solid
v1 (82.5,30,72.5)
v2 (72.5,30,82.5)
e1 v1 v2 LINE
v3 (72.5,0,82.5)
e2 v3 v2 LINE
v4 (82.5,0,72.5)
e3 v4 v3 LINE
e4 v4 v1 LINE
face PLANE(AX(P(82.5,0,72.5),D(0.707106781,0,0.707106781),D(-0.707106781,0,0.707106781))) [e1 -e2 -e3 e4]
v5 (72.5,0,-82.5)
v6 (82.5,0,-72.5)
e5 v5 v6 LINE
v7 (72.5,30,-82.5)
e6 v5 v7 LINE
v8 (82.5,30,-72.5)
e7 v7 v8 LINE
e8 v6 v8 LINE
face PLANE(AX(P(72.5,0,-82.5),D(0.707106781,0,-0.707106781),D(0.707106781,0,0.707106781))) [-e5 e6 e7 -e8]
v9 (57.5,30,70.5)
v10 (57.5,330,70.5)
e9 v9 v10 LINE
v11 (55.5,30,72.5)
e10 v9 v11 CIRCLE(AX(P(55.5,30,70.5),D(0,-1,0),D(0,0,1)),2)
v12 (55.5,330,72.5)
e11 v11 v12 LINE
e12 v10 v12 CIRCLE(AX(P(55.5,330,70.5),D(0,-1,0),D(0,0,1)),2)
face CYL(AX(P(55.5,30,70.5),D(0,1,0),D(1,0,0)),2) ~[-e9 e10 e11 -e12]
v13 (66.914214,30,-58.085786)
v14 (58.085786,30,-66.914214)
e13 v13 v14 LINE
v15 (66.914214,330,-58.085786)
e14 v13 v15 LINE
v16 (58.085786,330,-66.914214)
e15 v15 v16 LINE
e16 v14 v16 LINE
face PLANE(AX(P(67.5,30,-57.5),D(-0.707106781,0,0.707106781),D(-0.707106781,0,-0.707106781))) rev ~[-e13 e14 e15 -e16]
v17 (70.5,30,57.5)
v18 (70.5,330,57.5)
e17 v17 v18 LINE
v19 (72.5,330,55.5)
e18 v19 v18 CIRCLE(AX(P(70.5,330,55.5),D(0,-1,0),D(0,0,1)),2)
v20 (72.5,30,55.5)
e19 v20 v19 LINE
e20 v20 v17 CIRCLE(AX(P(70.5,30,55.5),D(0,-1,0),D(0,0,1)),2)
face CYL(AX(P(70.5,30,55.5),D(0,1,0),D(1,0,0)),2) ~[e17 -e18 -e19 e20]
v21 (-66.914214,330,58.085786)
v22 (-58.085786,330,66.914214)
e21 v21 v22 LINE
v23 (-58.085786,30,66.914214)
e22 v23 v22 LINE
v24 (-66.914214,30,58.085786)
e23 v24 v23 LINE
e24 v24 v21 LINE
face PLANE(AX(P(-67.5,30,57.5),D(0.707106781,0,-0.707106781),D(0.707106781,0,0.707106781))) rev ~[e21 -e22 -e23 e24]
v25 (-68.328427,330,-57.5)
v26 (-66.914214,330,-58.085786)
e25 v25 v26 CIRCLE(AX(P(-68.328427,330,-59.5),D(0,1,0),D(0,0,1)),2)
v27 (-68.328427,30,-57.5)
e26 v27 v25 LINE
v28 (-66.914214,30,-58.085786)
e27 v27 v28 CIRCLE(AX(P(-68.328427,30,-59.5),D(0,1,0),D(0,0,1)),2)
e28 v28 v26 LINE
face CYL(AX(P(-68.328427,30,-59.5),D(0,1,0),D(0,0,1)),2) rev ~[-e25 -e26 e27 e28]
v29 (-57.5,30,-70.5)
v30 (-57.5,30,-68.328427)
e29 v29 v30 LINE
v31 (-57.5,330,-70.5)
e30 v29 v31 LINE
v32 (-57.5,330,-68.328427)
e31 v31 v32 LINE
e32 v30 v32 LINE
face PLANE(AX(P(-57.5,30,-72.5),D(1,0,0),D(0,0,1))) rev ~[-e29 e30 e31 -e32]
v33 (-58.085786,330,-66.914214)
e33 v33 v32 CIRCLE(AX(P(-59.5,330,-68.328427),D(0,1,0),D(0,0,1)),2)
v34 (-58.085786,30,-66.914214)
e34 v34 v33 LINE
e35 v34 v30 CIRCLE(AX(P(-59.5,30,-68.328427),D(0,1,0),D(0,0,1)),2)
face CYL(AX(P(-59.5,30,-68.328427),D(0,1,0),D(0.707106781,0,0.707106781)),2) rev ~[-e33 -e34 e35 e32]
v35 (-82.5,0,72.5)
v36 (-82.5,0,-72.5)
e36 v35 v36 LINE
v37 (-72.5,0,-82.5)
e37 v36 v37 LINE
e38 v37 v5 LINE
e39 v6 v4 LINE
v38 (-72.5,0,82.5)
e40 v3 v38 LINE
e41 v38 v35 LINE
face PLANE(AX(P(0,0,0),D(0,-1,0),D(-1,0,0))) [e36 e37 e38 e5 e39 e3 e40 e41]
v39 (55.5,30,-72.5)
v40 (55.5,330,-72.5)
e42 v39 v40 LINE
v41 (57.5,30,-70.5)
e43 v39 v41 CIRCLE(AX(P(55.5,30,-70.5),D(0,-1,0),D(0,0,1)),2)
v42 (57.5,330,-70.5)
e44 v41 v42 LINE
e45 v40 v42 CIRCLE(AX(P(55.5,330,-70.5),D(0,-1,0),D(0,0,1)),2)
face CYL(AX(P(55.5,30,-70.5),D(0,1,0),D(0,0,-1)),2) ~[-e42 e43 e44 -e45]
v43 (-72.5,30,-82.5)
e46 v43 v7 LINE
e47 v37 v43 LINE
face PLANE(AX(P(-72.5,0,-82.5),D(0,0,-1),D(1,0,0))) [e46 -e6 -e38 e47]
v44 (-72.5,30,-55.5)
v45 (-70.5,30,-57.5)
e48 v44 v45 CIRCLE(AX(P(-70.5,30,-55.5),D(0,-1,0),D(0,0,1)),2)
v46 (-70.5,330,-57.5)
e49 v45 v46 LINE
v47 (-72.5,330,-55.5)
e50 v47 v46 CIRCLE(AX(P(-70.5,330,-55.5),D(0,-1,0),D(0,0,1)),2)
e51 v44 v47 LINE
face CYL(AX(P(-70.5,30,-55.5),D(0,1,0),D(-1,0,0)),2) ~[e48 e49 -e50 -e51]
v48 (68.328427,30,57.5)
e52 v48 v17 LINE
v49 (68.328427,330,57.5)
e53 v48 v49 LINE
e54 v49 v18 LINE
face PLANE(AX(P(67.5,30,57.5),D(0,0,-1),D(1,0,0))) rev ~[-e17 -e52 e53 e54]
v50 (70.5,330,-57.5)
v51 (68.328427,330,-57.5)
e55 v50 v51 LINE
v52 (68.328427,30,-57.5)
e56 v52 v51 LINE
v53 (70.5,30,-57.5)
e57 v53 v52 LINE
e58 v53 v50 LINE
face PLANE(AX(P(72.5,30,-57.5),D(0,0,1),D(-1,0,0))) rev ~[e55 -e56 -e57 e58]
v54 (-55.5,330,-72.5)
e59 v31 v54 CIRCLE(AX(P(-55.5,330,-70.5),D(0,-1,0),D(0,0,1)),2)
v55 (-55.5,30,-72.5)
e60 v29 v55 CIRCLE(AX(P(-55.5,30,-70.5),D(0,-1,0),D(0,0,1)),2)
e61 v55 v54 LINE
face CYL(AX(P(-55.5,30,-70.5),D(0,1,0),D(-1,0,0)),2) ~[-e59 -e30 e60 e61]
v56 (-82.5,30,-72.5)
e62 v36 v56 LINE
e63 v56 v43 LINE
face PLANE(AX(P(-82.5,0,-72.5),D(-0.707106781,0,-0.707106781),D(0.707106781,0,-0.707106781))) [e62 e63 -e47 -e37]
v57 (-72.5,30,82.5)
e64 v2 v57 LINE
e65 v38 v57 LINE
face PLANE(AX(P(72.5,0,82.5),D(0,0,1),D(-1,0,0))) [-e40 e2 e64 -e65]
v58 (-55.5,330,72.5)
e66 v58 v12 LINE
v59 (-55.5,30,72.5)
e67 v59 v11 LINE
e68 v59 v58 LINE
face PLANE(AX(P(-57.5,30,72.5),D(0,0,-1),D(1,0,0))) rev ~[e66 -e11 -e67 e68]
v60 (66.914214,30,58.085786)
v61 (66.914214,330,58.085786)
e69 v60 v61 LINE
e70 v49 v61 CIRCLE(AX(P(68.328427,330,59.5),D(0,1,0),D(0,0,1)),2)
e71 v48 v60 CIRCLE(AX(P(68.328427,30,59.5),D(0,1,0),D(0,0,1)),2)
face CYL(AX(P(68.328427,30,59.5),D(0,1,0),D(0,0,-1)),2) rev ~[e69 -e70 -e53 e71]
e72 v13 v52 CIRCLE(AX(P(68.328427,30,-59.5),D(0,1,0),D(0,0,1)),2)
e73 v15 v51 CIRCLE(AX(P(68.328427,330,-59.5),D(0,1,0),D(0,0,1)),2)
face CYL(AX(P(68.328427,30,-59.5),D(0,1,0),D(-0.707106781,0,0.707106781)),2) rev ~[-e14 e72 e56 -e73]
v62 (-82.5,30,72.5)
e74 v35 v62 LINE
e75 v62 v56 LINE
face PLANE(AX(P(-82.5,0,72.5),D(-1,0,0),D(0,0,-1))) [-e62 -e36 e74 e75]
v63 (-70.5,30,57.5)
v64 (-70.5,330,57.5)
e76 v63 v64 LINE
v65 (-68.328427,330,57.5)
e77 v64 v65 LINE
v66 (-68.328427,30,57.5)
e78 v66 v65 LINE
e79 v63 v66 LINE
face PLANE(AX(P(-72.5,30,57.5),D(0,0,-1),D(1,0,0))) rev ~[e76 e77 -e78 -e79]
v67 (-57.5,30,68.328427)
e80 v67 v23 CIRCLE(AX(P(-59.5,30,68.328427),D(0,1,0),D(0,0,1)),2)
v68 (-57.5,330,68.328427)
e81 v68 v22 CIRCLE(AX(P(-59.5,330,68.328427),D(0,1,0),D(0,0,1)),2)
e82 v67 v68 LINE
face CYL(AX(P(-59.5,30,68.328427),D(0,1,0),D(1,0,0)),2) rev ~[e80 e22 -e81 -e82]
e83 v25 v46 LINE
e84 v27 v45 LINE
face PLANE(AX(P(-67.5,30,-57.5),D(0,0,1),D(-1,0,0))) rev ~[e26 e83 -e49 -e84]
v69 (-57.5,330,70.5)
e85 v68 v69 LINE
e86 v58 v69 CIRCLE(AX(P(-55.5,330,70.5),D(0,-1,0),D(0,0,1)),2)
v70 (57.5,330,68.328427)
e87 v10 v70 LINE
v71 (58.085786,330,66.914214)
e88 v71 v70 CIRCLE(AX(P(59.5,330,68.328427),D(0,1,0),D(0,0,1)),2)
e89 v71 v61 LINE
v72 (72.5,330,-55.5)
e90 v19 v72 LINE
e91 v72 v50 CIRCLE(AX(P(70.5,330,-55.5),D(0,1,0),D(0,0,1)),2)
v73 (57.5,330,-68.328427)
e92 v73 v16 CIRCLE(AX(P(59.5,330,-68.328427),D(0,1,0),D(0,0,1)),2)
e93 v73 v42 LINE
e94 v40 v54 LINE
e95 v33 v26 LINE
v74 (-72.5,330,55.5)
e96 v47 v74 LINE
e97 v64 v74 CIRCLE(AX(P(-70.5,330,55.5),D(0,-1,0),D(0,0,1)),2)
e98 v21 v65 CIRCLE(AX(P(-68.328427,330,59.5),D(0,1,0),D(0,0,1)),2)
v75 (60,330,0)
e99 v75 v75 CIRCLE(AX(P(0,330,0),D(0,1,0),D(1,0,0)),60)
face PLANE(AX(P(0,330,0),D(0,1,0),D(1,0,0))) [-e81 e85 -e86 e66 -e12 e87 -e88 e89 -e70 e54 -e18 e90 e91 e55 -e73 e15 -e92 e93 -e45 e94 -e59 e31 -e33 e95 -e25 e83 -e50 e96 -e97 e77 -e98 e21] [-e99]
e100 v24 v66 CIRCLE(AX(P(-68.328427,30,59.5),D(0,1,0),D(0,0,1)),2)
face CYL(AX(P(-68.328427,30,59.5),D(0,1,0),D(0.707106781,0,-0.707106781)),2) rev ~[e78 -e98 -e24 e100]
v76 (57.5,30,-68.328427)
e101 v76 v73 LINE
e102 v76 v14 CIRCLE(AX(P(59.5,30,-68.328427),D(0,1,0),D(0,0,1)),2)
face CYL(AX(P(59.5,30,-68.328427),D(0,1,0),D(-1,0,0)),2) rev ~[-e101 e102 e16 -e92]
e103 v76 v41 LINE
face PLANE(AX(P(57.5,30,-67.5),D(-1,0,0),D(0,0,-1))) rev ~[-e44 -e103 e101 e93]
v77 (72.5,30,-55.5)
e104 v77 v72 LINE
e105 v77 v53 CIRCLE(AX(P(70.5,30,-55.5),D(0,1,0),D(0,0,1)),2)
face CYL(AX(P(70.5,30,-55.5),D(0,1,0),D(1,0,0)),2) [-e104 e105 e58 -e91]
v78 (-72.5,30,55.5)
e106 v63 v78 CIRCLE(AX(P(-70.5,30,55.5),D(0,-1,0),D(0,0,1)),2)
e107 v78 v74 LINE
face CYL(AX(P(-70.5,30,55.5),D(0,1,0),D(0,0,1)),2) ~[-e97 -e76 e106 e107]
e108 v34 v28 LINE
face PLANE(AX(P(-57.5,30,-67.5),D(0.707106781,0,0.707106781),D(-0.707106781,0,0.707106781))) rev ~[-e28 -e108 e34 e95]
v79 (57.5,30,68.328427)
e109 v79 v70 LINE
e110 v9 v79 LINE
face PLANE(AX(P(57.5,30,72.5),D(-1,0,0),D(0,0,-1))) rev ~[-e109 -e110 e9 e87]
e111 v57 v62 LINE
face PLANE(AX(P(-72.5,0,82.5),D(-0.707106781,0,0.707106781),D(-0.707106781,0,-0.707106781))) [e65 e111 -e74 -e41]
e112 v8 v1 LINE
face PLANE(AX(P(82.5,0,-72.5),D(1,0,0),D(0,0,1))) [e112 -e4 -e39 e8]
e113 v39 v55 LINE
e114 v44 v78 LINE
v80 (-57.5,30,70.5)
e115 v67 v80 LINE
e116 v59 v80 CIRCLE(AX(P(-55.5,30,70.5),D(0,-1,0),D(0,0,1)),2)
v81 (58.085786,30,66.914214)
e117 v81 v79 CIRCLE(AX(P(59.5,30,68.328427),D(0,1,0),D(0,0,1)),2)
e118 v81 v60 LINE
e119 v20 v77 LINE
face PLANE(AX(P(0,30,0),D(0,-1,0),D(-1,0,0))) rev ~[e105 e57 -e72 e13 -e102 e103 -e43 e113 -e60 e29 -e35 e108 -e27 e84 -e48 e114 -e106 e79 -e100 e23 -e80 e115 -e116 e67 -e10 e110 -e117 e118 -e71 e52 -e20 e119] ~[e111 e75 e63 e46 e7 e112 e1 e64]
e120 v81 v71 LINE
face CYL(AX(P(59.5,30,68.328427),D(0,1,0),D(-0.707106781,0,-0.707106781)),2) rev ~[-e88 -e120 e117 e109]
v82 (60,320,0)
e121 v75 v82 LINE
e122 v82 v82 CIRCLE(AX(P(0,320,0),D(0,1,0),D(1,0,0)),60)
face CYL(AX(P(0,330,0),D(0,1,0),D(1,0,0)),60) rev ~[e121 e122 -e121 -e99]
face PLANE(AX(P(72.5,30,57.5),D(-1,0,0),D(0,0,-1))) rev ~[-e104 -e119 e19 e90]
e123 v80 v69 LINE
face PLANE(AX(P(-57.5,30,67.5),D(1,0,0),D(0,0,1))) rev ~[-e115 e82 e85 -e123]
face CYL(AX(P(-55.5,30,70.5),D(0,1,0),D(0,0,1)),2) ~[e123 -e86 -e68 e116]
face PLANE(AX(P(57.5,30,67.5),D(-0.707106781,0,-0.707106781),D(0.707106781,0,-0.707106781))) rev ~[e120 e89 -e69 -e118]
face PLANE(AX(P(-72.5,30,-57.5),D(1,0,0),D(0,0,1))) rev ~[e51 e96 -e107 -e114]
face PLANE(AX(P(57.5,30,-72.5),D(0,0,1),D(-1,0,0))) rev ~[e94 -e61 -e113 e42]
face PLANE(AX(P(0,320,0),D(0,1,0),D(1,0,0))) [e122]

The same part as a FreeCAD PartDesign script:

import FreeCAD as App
import Part
import Sketcher

V = App.Vector


def edges_at(feature, points):
    """Names of the edges that pass closest to the given points."""
    edges = feature.Shape.Edges
    near = lambda p: min(range(len(edges)), key=lambda i: edges[i].distToShape(Part.Vertex(*p))[0])
    return sorted({f"Edge{near(p) + 1}" for p in points})


def add_polygon(sketch, points):
    """Adds a closed chain of lines whose ends are joined by coincident constraints."""
    first, n = sketch.GeometryCount, len(points)
    for a, b in zip(points, points[1:] + points[:1]):
        sketch.addGeometry(Part.LineSegment(App.Vector(*a, 0), App.Vector(*b, 0)), False)
    for i in range(n):
        sketch.addConstraint(Sketcher.Constraint("Coincident", first + i, 2, first + (i + 1) % n, 1))

doc = App.newDocument("Part")
body = doc.addObject("PartDesign::Body", "Body")

# Sketch on XZ plane
sketch1 = doc.addObject("Sketcher::SketchObject", "Sketch")
body.addObject(sketch1)
sketch1.AttachmentSupport = (doc.XZ_Plane, [""])
sketch1.MapMode = "FlatFace"
add_polygon(sketch1, [(-72, -82), (-82, -72), (-82, 72), (-72, 82), (72, 82), (82, 72), (82, -72), (72, -82)])  # lines 0-7
sketch1.addConstraint([
    Sketcher.Constraint("Vertical", 1),
    Sketcher.Constraint("Horizontal", 3),
    Sketcher.Constraint("Vertical", 5),
    Sketcher.Constraint("Horizontal", 7),
    Sketcher.Constraint("Symmetric", 0, 2, 4, 2, -1, 1),
    Sketcher.Constraint("Symmetric", 2, 2, 6, 2, -1, 1),
    Sketcher.Constraint("Perpendicular", 0, 2),
    Sketcher.Constraint("Perpendicular", 2, 4),
    Sketcher.Constraint("Perpendicular", 4, 6),
    Sketcher.Constraint("Horizontal", 1, 2, 4, 2),
    Sketcher.Constraint("Vertical", 3, 2, 6, 2),
    Sketcher.Constraint("Equal", 7, 1),
    Sketcher.Constraint("DistanceX", 3, 1, 3, 2, 145.0),
    Sketcher.Constraint("DistanceX", 1, 2, 2, 2, 10.0),
])
pad1 = doc.addObject("PartDesign::Pad", "Pad")
body.addObject(pad1)
pad1.Profile = sketch1
pad1.Length = 30
pad1.Reversed = True

# Sketch on XZ plane
sketch2 = doc.addObject("Sketcher::SketchObject", "Sketch001")
body.addObject(sketch2)
sketch2.AttachmentSupport = (doc.XZ_Plane, [""])
sketch2.MapMode = "FlatFace"
sketch2.AttachmentOffset = App.Placement(V(0, 0, -30), App.Rotation())
add_polygon(sketch2, [(72, -58), (68, -58), (58, -68), (58, -72), (-58, -72), (-58, -68), (-68, -58), (-72, -58), (-72, 58), (-68, 58), (-58, 68), (-58, 72), (58, 72), (58, 68), (68, 58), (72, 58)])  # lines 0-15
sketch2.addConstraint([
    Sketcher.Constraint("Horizontal", 0),
    Sketcher.Constraint("Vertical", 2),
    Sketcher.Constraint("Horizontal", 3),
    Sketcher.Constraint("Vertical", 4),
    Sketcher.Constraint("Horizontal", 6),
    Sketcher.Constraint("Vertical", 7),
    Sketcher.Constraint("Horizontal", 8),
    Sketcher.Constraint("Vertical", 10),
    Sketcher.Constraint("Horizontal", 11),
    Sketcher.Constraint("Vertical", 12),
    Sketcher.Constraint("Horizontal", 14),
    Sketcher.Constraint("Vertical", 15),
    Sketcher.Constraint("Symmetric", 0, 2, 8, 2, -1, 1),
    Sketcher.Constraint("Symmetric", 1, 2, 9, 2, -1, 1),
    Sketcher.Constraint("Symmetric", 3, 2, 11, 2, -1, 1),
    Sketcher.Constraint("Symmetric", 5, 2, 13, 2, -1, 1),
    Sketcher.Constraint("Symmetric", 1, 2, 4, 2, -2),
    Sketcher.Constraint("Symmetric", 0, 2, 5, 2, -2),
    Sketcher.Constraint("Perpendicular", 1, 5),
    Sketcher.Constraint("Perpendicular", 9, 13),
    Sketcher.Constraint("Equal", 0, 6),
    Sketcher.Constraint("Equal", 14, 2),
    Sketcher.Constraint("Equal", 11, 7),
    Sketcher.Constraint("DistanceX", 0, 2, 0, 1, 5.0),
    Sketcher.Constraint("DistanceX", 3, 2, 3, 1, 115.0),
    Sketcher.Constraint("DistanceX", 1, 2, 0, 2, 10.0),
])
pad2 = doc.addObject("PartDesign::Pad", "Pad001")
body.addObject(pad2)
pad2.Profile = sketch2
pad2.Length = 300
pad2.Reversed = True

# Sketch on XZ plane
sketch3 = doc.addObject("Sketcher::SketchObject", "Sketch002")
body.addObject(sketch3)
sketch3.AttachmentSupport = (doc.XZ_Plane, [""])
sketch3.MapMode = "FlatFace"
sketch3.AttachmentOffset = App.Placement(V(0, 0, -330), App.Rotation())
sketch3.addGeometry(Part.Circle(V(0, 0, 0), V(0, 0, 1), 60), False)
sketch3.addConstraint([
    Sketcher.Constraint("Coincident", 0, 3, -1, 1),
    Sketcher.Constraint("Diameter", 0, 120.0),
])
pocket1 = doc.addObject("PartDesign::Pocket", "Pocket")
body.addObject(pocket1)
pocket1.Profile = sketch3
pocket1.Length = 10
pocket1.Reversed = True
doc.recompute()

fillet = doc.addObject("PartDesign::Fillet", "Fillet")
body.addObject(fillet)
fillet.Base = (pocket1, edges_at(pocket1, [
    (72.5, 180, 57.5),
    (72.5, 180, -57.5),
    (67.5, 180, -57.5),
    (57.5, 180, -67.5),
    (57.5, 180, -72.5),
    (-57.5, 180, -72.5),
    (-57.5, 180, -67.5),
    (-67.5, 180, -57.5),
    (-72.5, 180, -57.5),
    (-72.5, 180, 57.5),
    (-67.5, 180, 57.5),
    (-57.5, 180, 67.5),
    (-57.5, 180, 72.5),
    (57.5, 180, 72.5),
    (57.5, 180, 67.5),
    (67.5, 180, 57.5),
]))
fillet.Radius = 2

doc.recompute()
